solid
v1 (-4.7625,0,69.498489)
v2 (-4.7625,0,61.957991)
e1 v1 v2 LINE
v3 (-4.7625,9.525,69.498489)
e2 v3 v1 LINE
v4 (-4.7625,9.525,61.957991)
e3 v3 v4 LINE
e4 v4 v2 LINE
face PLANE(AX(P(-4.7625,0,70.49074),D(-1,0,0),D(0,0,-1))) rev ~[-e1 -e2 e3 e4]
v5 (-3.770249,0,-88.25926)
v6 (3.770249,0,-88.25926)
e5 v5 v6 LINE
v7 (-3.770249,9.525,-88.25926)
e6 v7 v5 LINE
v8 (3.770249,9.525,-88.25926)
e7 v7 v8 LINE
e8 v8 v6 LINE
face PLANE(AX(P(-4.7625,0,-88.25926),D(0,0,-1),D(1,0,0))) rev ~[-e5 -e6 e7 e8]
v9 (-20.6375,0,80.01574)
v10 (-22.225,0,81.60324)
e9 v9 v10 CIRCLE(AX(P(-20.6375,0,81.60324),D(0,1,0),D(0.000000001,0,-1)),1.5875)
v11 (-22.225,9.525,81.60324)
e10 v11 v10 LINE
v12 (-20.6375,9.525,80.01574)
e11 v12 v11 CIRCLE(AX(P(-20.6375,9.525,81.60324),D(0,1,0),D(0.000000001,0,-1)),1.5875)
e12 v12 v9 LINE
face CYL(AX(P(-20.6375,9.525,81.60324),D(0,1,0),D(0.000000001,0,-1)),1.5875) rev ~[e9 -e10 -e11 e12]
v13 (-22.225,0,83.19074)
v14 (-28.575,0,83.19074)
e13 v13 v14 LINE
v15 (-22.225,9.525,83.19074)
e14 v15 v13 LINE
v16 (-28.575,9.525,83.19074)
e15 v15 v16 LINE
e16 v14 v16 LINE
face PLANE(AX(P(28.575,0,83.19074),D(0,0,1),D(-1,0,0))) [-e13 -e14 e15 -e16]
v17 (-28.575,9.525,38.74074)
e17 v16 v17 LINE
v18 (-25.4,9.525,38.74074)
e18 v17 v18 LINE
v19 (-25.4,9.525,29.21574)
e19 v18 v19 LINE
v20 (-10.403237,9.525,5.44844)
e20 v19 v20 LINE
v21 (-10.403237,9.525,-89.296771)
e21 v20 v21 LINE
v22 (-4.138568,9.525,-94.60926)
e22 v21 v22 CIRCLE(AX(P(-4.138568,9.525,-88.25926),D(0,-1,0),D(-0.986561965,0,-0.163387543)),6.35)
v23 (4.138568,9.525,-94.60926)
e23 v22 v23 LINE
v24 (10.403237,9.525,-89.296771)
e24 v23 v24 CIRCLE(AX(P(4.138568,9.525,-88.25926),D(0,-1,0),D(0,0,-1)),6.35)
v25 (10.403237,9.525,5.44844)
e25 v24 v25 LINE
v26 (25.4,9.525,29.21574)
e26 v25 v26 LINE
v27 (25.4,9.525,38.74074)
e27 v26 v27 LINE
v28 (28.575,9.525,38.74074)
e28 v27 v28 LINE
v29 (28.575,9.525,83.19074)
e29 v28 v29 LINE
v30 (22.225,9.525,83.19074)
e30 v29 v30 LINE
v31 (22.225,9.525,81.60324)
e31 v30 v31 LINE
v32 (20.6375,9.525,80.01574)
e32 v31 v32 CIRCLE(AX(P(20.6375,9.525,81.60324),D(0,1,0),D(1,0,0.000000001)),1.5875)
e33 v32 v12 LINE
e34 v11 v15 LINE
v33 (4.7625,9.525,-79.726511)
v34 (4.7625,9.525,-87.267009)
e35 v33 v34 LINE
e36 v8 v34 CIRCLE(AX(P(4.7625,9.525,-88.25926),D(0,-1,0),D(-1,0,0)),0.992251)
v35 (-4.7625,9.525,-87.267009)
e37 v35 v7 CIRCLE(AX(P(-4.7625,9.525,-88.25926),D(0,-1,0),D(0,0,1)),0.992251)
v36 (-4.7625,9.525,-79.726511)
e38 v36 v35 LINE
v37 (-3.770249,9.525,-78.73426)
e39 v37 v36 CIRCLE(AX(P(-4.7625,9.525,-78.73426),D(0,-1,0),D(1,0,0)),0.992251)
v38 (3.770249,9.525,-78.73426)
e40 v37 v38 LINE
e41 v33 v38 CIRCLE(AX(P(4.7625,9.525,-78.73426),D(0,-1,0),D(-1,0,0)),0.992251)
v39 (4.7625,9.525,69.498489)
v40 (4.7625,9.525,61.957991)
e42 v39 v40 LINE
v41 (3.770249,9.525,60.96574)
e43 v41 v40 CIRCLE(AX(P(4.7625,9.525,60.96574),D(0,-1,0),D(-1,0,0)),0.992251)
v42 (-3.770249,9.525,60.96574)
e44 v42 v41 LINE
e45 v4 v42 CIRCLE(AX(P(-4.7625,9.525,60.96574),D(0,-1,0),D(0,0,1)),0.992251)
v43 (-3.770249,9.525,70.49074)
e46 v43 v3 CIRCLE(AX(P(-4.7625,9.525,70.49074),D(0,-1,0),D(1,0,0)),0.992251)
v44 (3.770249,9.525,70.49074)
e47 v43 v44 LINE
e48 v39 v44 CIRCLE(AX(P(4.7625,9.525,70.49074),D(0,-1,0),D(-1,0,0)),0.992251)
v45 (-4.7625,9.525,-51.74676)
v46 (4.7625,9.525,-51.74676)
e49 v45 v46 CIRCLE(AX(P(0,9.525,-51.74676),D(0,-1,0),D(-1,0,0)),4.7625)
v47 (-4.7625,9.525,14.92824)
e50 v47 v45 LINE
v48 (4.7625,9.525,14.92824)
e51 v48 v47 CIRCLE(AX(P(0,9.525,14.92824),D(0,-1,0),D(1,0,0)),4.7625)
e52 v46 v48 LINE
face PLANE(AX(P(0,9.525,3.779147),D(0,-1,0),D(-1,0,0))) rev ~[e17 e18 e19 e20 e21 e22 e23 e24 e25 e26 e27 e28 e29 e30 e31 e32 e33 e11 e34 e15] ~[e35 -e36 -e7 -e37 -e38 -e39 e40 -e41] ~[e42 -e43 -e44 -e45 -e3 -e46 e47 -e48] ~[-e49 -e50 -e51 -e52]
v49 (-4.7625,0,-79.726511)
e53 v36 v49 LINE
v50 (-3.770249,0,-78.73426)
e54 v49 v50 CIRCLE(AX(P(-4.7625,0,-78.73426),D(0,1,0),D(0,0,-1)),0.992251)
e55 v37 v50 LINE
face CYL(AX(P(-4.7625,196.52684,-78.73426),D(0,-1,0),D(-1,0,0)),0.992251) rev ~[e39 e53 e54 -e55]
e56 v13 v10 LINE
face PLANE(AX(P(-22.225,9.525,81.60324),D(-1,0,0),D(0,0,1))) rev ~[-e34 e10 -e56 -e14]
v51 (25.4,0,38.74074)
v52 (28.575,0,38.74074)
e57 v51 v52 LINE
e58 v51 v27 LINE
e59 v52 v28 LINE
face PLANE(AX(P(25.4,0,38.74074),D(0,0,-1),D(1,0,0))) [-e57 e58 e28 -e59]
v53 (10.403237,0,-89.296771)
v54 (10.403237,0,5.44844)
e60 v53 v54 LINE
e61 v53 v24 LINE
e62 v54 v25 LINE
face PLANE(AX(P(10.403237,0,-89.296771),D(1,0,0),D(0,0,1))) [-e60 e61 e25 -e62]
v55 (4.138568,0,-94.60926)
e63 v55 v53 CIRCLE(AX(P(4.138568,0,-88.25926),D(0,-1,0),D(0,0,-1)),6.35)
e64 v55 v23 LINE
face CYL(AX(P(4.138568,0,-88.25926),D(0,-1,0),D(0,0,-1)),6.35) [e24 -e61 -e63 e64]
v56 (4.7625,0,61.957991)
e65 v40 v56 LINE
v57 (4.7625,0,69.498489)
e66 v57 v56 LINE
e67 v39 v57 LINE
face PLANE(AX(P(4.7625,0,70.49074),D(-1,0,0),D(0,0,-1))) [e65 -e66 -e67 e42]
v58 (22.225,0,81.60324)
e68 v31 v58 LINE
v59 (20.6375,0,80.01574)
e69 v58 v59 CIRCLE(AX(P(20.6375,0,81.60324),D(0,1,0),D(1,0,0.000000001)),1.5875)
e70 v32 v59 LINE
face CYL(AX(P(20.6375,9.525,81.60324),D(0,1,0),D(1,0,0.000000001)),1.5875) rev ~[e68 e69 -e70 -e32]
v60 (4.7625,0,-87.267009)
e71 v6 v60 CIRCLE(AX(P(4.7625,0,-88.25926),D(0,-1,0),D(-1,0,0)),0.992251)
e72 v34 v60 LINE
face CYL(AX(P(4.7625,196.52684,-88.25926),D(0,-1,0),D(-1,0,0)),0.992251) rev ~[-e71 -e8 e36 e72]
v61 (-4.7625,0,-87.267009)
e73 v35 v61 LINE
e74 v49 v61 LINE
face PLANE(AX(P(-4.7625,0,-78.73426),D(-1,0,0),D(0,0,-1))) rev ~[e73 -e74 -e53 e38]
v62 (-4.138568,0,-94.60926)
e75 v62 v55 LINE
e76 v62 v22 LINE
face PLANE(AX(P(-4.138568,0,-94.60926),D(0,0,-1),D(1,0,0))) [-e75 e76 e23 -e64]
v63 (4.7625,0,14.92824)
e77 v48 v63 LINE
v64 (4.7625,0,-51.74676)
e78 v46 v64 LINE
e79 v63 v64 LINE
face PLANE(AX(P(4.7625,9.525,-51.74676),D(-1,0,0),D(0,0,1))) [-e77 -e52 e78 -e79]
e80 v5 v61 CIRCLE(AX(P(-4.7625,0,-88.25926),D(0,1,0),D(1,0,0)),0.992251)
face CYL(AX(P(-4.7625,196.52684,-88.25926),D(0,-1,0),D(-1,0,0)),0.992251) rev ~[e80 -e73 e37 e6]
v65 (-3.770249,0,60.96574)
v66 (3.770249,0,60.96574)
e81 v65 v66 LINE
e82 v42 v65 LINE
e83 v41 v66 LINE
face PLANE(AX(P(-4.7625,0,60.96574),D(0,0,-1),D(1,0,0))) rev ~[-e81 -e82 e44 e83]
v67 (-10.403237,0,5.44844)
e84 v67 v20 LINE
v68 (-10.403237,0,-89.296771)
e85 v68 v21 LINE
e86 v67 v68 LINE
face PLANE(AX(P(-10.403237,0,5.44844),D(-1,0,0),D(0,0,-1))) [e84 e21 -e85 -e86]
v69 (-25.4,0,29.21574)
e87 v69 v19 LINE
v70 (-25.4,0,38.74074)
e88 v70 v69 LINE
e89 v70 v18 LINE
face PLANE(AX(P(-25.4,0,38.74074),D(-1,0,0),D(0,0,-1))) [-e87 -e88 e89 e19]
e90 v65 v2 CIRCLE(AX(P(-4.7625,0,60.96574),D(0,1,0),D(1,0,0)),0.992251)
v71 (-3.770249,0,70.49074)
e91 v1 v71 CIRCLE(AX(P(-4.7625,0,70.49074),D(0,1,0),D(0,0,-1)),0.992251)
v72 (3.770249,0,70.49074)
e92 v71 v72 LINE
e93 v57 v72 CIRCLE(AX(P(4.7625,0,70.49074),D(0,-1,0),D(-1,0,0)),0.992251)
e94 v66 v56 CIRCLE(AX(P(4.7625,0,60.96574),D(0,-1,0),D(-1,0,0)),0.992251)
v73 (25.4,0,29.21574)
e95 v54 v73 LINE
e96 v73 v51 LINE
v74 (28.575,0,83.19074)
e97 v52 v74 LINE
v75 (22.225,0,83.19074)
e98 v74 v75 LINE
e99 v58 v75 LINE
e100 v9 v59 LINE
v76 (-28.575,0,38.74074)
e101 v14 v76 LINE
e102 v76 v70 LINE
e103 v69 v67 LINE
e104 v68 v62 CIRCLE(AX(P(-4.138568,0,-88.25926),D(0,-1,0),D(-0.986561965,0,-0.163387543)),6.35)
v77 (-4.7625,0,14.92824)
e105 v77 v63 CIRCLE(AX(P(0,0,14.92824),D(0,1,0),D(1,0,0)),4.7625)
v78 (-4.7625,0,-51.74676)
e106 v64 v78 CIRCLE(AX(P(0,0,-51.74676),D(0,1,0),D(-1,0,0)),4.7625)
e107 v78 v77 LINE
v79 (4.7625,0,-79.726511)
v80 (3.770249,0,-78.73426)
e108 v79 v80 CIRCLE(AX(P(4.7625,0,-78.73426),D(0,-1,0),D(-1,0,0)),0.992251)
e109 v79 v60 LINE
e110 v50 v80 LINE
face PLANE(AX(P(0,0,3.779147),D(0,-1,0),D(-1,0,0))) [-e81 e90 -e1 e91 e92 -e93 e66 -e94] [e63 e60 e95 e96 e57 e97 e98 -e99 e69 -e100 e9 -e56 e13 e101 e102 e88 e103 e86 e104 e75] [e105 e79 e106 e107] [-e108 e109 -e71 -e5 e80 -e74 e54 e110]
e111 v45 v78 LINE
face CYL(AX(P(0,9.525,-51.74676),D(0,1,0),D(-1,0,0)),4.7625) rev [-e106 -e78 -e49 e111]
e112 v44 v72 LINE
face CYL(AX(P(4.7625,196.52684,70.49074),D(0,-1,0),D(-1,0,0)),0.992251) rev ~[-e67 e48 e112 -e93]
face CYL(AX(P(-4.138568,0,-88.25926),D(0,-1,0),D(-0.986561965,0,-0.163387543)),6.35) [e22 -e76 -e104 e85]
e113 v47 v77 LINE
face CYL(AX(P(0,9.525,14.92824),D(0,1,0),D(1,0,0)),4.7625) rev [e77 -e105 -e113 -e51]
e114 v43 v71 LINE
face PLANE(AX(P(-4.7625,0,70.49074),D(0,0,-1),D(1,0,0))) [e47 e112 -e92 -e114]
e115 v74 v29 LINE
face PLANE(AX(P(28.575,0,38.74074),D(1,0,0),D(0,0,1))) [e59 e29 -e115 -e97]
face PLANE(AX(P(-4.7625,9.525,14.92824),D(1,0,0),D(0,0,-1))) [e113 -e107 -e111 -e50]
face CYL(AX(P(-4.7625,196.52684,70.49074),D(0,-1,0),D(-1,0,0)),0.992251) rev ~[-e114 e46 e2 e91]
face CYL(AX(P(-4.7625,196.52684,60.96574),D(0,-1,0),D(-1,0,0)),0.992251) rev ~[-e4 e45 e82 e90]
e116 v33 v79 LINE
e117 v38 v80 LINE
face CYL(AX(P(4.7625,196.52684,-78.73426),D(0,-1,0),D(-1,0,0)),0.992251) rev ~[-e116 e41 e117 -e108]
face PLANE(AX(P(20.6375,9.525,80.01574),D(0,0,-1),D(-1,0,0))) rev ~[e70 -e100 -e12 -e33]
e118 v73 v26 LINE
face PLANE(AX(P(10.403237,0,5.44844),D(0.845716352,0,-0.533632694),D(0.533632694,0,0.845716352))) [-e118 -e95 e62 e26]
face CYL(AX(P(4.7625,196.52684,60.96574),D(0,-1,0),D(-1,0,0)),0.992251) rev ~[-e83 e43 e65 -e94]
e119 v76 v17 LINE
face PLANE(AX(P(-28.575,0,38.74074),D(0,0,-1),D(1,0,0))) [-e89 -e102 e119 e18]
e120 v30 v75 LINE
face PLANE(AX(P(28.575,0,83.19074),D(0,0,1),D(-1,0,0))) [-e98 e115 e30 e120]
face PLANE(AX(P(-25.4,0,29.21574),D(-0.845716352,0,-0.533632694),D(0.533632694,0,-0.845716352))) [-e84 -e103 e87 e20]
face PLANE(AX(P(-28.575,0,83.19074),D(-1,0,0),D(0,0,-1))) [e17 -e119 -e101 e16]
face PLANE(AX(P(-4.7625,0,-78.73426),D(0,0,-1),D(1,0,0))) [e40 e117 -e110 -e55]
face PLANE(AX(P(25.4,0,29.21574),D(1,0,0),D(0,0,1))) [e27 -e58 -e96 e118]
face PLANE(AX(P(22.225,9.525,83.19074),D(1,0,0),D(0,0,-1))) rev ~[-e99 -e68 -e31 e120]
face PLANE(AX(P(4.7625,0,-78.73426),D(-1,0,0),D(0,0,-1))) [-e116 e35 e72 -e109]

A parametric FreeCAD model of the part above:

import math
import FreeCAD as App
import Part
import Sketcher
from FreeCAD import Vector
Q = App.Units.Quantity

doc = App.newDocument("Part")
body = doc.addObject("PartDesign::Body", "Body")

sketch1 = body.newObject("Sketcher::SketchObject", "Sketch")
sketch1.AttachmentSupport = (doc.getObject("XZ_Plane"), [""])
sketch1.MapMode = "FlatFace"
sketch1.addGeometry(Part.LineSegment(Vector(4.1, -94.6, 0), Vector(-4.1, -94.6, 0)), False)
sketch1.addGeometry(Part.ArcOfCircle(Part.Circle(Vector(-4.1, -88.3, 0), Vector(0, 0, 1), 6.3), math.radians(-171), math.radians(-90)), False)
sketch1.addGeometry(Part.LineSegment(Vector(-10.4, -89.3, 0), Vector(-10.4, 5.4, 0)), False)
sketch1.addGeometry(Part.LineSegment(Vector(-10.4, 5.4, 0), Vector(-25.4, 29.2, 0)), False)
sketch1.addGeometry(Part.LineSegment(Vector(-25.4, 29.2, 0), Vector(-25.4, 38.7, 0)), False)
sketch1.addGeometry(Part.LineSegment(Vector(-25.4, 38.7, 0), Vector(-28.6, 38.7, 0)), False)
sketch1.addGeometry(Part.LineSegment(Vector(-28.6, 38.7, 0), Vector(-28.6, 83.2, 0)), False)
sketch1.addGeometry(Part.LineSegment(Vector(-28.6, 83.2, 0), Vector(28.6, 83.2, 0)), False)
sketch1.addGeometry(Part.LineSegment(Vector(28.6, 83.2, 0), Vector(28.6, 38.7, 0)), False)
sketch1.addGeometry(Part.LineSegment(Vector(28.6, 38.7, 0), Vector(25.4, 38.7, 0)), False)
sketch1.addGeometry(Part.LineSegment(Vector(25.4, 38.7, 0), Vector(25.4, 29.2, 0)), False)
sketch1.addGeometry(Part.LineSegment(Vector(25.4, 29.2, 0), Vector(10.4, 5.4, 0)), False)
sketch1.addGeometry(Part.LineSegment(Vector(10.4, 5.4, 0), Vector(10.4, -89.3, 0)), False)
sketch1.addGeometry(Part.ArcOfCircle(Part.Circle(Vector(4.1, -88.3, 0), Vector(0, 0, 1), 6.3), math.radians(-90), math.radians(-9)), False)
sketch1.addGeometry(Part.LineSegment(Vector(-4.8, 70.5, 0), Vector(-4.8, 61, 0)), False)
sketch1.addGeometry(Part.LineSegment(Vector(-4.8, 61, 0), Vector(4.8, 61, 0)), False)
sketch1.addGeometry(Part.LineSegment(Vector(4.8, 61, 0), Vector(4.8, 70.5, 0)), False)
sketch1.addGeometry(Part.LineSegment(Vector(4.8, 70.5, 0), Vector(-4.8, 70.5, 0)), False)
sketch1.addGeometry(Part.LineSegment(Vector(-4.8, -78.7, 0), Vector(-4.8, -88.3, 0)), False)
sketch1.addGeometry(Part.LineSegment(Vector(-4.8, -88.3, 0), Vector(4.8, -88.3, 0)), False)
sketch1.addGeometry(Part.LineSegment(Vector(4.8, -88.3, 0), Vector(4.8, -78.7, 0)), False)
sketch1.addGeometry(Part.LineSegment(Vector(4.8, -78.7, 0), Vector(-4.8, -78.7, 0)), False)
sketch1.addConstraint(Sketcher.Constraint("Tangent", 0, 2, 1, 2))
sketch1.addConstraint(Sketcher.Constraint("Coincident", 1, 1, 2, 1))
sketch1.addConstraint(Sketcher.Constraint("Coincident", 2, 2, 3, 1))
sketch1.addConstraint(Sketcher.Constraint("Coincident", 3, 2, 4, 1))
sketch1.addConstraint(Sketcher.Constraint("Coincident", 4, 2, 5, 1))
sketch1.addConstraint(Sketcher.Constraint("Coincident", 5, 2, 6, 1))
sketch1.addConstraint(Sketcher.Constraint("Coincident", 6, 2, 7, 1))
sketch1.addConstraint(Sketcher.Constraint("Coincident", 7, 2, 8, 1))
sketch1.addConstraint(Sketcher.Constraint("Coincident", 8, 2, 9, 1))
sketch1.addConstraint(Sketcher.Constraint("Coincident", 9, 2, 10, 1))
sketch1.addConstraint(Sketcher.Constraint("Coincident", 10, 2, 11, 1))
sketch1.addConstraint(Sketcher.Constraint("Coincident", 11, 2, 12, 1))
sketch1.addConstraint(Sketcher.Constraint("Coincident", 12, 2, 13, 2))
sketch1.addConstraint(Sketcher.Constraint("Tangent", 13, 1, 0, 1))
sketch1.addConstraint(Sketcher.Constraint("Coincident", 14, 2, 15, 1))
sketch1.addConstraint(Sketcher.Constraint("Coincident", 15, 2, 16, 1))
sketch1.addConstraint(Sketcher.Constraint("Coincident", 16, 2, 17, 1))
sketch1.addConstraint(Sketcher.Constraint("Coincident", 17, 2, 14, 1))
sketch1.addConstraint(Sketcher.Constraint("Coincident", 18, 2, 19, 1))
sketch1.addConstraint(Sketcher.Constraint("Coincident", 19, 2, 20, 1))
sketch1.addConstraint(Sketcher.Constraint("Coincident", 20, 2, 21, 1))
sketch1.addConstraint(Sketcher.Constraint("Coincident", 21, 2, 18, 1))
sketch1.addConstraint(Sketcher.Constraint("Horizontal", 0))
sketch1.addConstraint(Sketcher.Constraint("Vertical", 2))
sketch1.addConstraint(Sketcher.Constraint("Vertical", 4))
sketch1.addConstraint(Sketcher.Constraint("Horizontal", 5))
sketch1.addConstraint(Sketcher.Constraint("Vertical", 6))
sketch1.addConstraint(Sketcher.Constraint("Horizontal", 7))
sketch1.addConstraint(Sketcher.Constraint("Vertical", 8))
sketch1.addConstraint(Sketcher.Constraint("Horizontal", 9))
sketch1.addConstraint(Sketcher.Constraint("Vertical", 10))
sketch1.addConstraint(Sketcher.Constraint("Vertical", 12))
sketch1.addConstraint(Sketcher.Constraint("Vertical", 14))
sketch1.addConstraint(Sketcher.Constraint("Horizontal", 15))
sketch1.addConstraint(Sketcher.Constraint("Vertical", 16))
sketch1.addConstraint(Sketcher.Constraint("Horizontal", 17))
sketch1.addConstraint(Sketcher.Constraint("Vertical", 18))
sketch1.addConstraint(Sketcher.Constraint("Horizontal", 19))
sketch1.addConstraint(Sketcher.Constraint("Vertical", 20))
sketch1.addConstraint(Sketcher.Constraint("Horizontal", 21))
sketch1.addConstraint(Sketcher.Constraint("Equal", 1, 13))
sketch1.addConstraint(Sketcher.Constraint("Symmetric", 5, 2, 8, 2, -2))
sketch1.addConstraint(Sketcher.Constraint("Symmetric", 3, 2, 10, 2, -2))
sketch1.addConstraint(Sketcher.Constraint("Symmetric", 2, 2, 11, 2, -2))
sketch1.addConstraint(Sketcher.Constraint("Horizontal", 1, 1, 12, 2))
sketch1.addConstraint(Sketcher.Constraint("Horizontal", 13, 3, 18, 2))
sketch1.addConstraint(Sketcher.Constraint("Vertical", 17, 2, 18, 2))
sketch1.addConstraint(Sketcher.Constraint("Vertical", 16, 2, 19, 2))
sketch1.addConstraint(Sketcher.Constraint("Equal", 21, 4))
sketch1.addConstraint(Sketcher.Constraint("Equal", 10, 14))
sketch1.addConstraint(Sketcher.Constraint("Equal", 16, 18))
sketch1.addConstraint(Sketcher.Constraint("Radius", 1, Q("0.25 in")))
sketch1.addConstraint(Sketcher.Constraint("DistanceX", 3, 2, -1, 1, Q("1 in")))
sketch1.addConstraint(Sketcher.Constraint("DistanceY", 1, 3, 4, 2, Q("5 in")))
sketch1.addConstraint(Sketcher.Constraint("DistanceX", 7, 1, 7, 2, Q("2.25 in")))
sketch1.addConstraint(Sketcher.Constraint("DistanceY", 6, 1, 6, 2, Q("1.75 in")))
sketch1.addConstraint(Sketcher.Constraint("DistanceY", 16, 2, 7, 2, Q("0.5 in")))
sketch1.addConstraint(Sketcher.Constraint("DistanceX", 15, 1, 15, 2, Q("0.375 in")))
sketch1.addConstraint(Sketcher.Constraint("DistanceX", 14, 2, -1, 1, Q("0.1875 in")))
sketch1.addConstraint(Sketcher.Constraint("DistanceY", 2, 1, 2, 2, Q("94.745211 mm")))
sketch1.addConstraint(Sketcher.Constraint("DistanceY", 1, 3, 2, 2, Q("93.7077 mm")))
sketch1.addConstraint(Sketcher.Constraint("DistanceX", 0, 2, 0, 1, Q("8.277136 mm")))
sketch1.addConstraint(Sketcher.Constraint("DistanceY", 1, 3, -1, 1, Q("88.25926 mm")))
pad1 = body.newObject("PartDesign::Pad", "Pad")
pad1.Profile = sketch1
pad1.Length = Q("0.375 in")
pad1.Reversed = True

sketch2 = body.newObject("Sketcher::SketchObject", "Sketch001")
sketch2.AttachmentSupport = (doc.getObject("XZ_Plane"), [""])
sketch2.MapMode = "FlatFace"
sketch2.AttachmentOffset = App.Placement(Vector(0, 0, -0.375 * 25.4), App.Rotation())
sketch2.addGeometry(Part.LineSegment(Vector(4.8, 14.9, 0), Vector(4.8, -51.7, 0)), False)
sketch2.addGeometry(Part.ArcOfCircle(Part.Circle(Vector(0, -51.7, 0), Vector(0, 0, 1), 4.8), math.radians(180), math.radians(360)), False)
sketch2.addGeometry(Part.LineSegment(Vector(-4.8, -51.7, 0), Vector(-4.8, 14.9, 0)), False)
sketch2.addGeometry(Part.ArcOfCircle(Part.Circle(Vector(0, 14.9, 0), Vector(0, 0, 1), 4.8), math.radians(0), math.radians(180)), False)
sketch2.addConstraint(Sketcher.Constraint("Tangent", 0, 2, 1, 2))
sketch2.addConstraint(Sketcher.Constraint("Tangent", 1, 1, 2, 1))
sketch2.addConstraint(Sketcher.Constraint("Tangent", 2, 2, 3, 2))
sketch2.addConstraint(Sketcher.Constraint("Tangent", 3, 1, 0, 1))
sketch2.addConstraint(Sketcher.Constraint("Vertical", 0))
sketch2.addConstraint(Sketcher.Constraint("Vertical", 2))
sketch2.addConstraint(Sketcher.Constraint("PointOnObject", 1, 3, -2))
sketch2.addConstraint(Sketcher.Constraint("Radius", 1, Q("0.1875 in")))
sketch2.addConstraint(Sketcher.Constraint("DistanceY", 0, 2, 0, 1, Q("2.625 in")))
sketch2.addConstraint(Sketcher.Constraint("DistanceY", 1, 3, -1, 1, Q("51.74676 mm")))
pocket1 = body.newObject("PartDesign::Pocket", "Pocket")
pocket1.Profile = sketch2
pocket1.Type = "ThroughAll"
pocket1.Reversed = True

sketch3 = body.newObject("Sketcher::SketchObject", "Sketch002")
sketch3.AttachmentSupport = (doc.getObject("XZ_Plane"), [""])
sketch3.MapMode = "FlatFace"
sketch3.AttachmentOffset = App.Placement(Vector(0, 0, -0.375 * 25.4), App.Rotation())
sketch3.addGeometry(Part.LineSegment(Vector(-22.2, 83.2, 0), Vector(22.2, 83.2, 0)), False)
sketch3.addGeometry(Part.LineSegment(Vector(22.2, 83.2, 0), Vector(22.2, 81.6, 0)), False)
sketch3.addGeometry(Part.ArcOfCircle(Part.Circle(Vector(20.6, 81.6, 0), Vector(0, 0, 1), 1.6), math.radians(-90), math.radians(0)), False)
sketch3.addGeometry(Part.LineSegment(Vector(20.6, 80, 0), Vector(-20.6, 80, 0)), False)
sketch3.addGeometry(Part.ArcOfCircle(Part.Circle(Vector(-20.6, 81.6, 0), Vector(0, 0, 1), 1.6), math.radians(180), math.radians(270)), False)
sketch3.addGeometry(Part.LineSegment(Vector(-22.2, 81.6, 0), Vector(-22.2, 83.2, 0)), False)
sketch3.addConstraint(Sketcher.Constraint("Coincident", 0, 2, 1, 1))
sketch3.addConstraint(Sketcher.Constraint("Tangent", 1, 2, 2, 2))
sketch3.addConstraint(Sketcher.Constraint("Tangent", 2, 1, 3, 1))
sketch3.addConstraint(Sketcher.Constraint("Tangent", 3, 2, 4, 2))
sketch3.addConstraint(Sketcher.Constraint("Tangent", 4, 1, 5, 1))
sketch3.addConstraint(Sketcher.Constraint("Coincident", 5, 2, 0, 1))
sketch3.addConstraint(Sketcher.Constraint("Horizontal", 0))
sketch3.addConstraint(Sketcher.Constraint("Vertical", 1))
sketch3.addConstraint(Sketcher.Constraint("Horizontal", 3))
sketch3.addConstraint(Sketcher.Constraint("Vertical", 5))
sketch3.addConstraint(Sketcher.Constraint("Equal", 2, 4))
sketch3.addConstraint(Sketcher.Constraint("Radius", 2, Q("0.0625 in")))
sketch3.addConstraint(Sketcher.Constraint("DistanceX", 0, 1, 0, 2, Q("1.75 in")))
sketch3.addConstraint(Sketcher.Constraint("DistanceY", 1, 2, 1, 1, Q("0.0625 in")))
sketch3.addConstraint(Sketcher.Constraint("DistanceX", -1, 1, 2, 3, Q("0.8125 in")))
sketch3.addConstraint(Sketcher.Constraint("DistanceY", -1, 1, 2, 3, Q("81.60324 mm")))
pocket2 = body.newObject("PartDesign::Pocket", "Pocket001")
pocket2.Profile = sketch3
pocket2.Type = "ThroughAll"
pocket2.Reversed = True

sketch4 = body.newObject("Sketcher::SketchObject", "Sketch003")
sketch4.AttachmentSupport = (doc.getObject("XZ_Plane"), [""])
sketch4.MapMode = "FlatFace"
sketch4.AttachmentOffset = App.Placement(Vector(0, 0, -0.375 * 25.4), App.Rotation())
sketch4.addGeometry(Part.Circle(Vector(-4.8, -88.3, 0), Vector(0, 0, 1), 1), False)
sketch4.addGeometry(Part.Circle(Vector(4.8, -88.3, 0), Vector(0, 0, 1), 1), False)
sketch4.addGeometry(Part.Circle(Vector(4.8, -78.7, 0), Vector(0, 0, 1), 1), False)
sketch4.addGeometry(Part.Circle(Vector(-4.8, -78.7, 0), Vector(0, 0, 1), 1), False)
sketch4.addGeometry(Part.Circle(Vector(-4.8, 61, 0), Vector(0, 0, 1), 1), False)
sketch4.addGeometry(Part.Circle(Vector(4.8, 61, 0), Vector(0, 0, 1), 1), False)
sketch4.addGeometry(Part.Circle(Vector(4.8, 70.5, 0), Vector(0, 0, 1), 1), False)
sketch4.addGeometry(Part.Circle(Vector(-4.8, 70.5, 0), Vector(0, 0, 1), 1), False)
sketch4.addConstraint(Sketcher.Constraint("Equal", 0, 1))
sketch4.addConstraint(Sketcher.Constraint("Equal", 1, 2))
sketch4.addConstraint(Sketcher.Constraint("Equal", 2, 3))
sketch4.addConstraint(Sketcher.Constraint("Equal", 3, 4))
sketch4.addConstraint(Sketcher.Constraint("Equal", 4, 5))
sketch4.addConstraint(Sketcher.Constraint("Equal", 5, 6))
sketch4.addConstraint(Sketcher.Constraint("Equal", 6, 7))
sketch4.addConstraint(Sketcher.Constraint("Symmetric", 0, 3, 1, 3, -2))
sketch4.addConstraint(Sketcher.Constraint("Symmetric", 2, 3, 3, 3, -2))
sketch4.addConstraint(Sketcher.Constraint("Symmetric", 4, 3, 5, 3, -2))
sketch4.addConstraint(Sketcher.Constraint("Symmetric", 6, 3, 7, 3, -2))
sketch4.addConstraint(Sketcher.Constraint("Vertical", 1, 3, 2, 3))
sketch4.addConstraint(Sketcher.Constraint("Vertical", 3, 3, 4, 3))
sketch4.addConstraint(Sketcher.Constraint("Vertical", 5, 3, 6, 3))
sketch4.addConstraint(Sketcher.Constraint("DistanceY", 3, 3, 4, 3, Q("5.5 in")))
sketch4.addConstraint(Sketcher.Constraint("DistanceY", 1, 3, 6, 3, Q("6.25 in")))
sketch4.addConstraint(Sketcher.Constraint("DistanceX", 0, 3, -1, 1, Q("0.1875 in")))
sketch4.addConstraint(Sketcher.Constraint("DistanceY", 1, 3, 2, 3, Q("0.375 in")))
sketch4.addConstraint(Sketcher.Constraint("Diameter", 0, Q("1.984502 mm")))
sketch4.addConstraint(Sketcher.Constraint("DistanceY", 0, 3, -1, 1, Q("88.25926 mm")))
doc.recompute()
hole = body.newObject("PartDesign::Hole", "Hole")
hole.Profile = sketch4
hole.ThreadType = "None"
hole.Diameter = 1.984502
hole.DepthType = "ThroughAll"
hole.Reversed = True

doc.recompute()
